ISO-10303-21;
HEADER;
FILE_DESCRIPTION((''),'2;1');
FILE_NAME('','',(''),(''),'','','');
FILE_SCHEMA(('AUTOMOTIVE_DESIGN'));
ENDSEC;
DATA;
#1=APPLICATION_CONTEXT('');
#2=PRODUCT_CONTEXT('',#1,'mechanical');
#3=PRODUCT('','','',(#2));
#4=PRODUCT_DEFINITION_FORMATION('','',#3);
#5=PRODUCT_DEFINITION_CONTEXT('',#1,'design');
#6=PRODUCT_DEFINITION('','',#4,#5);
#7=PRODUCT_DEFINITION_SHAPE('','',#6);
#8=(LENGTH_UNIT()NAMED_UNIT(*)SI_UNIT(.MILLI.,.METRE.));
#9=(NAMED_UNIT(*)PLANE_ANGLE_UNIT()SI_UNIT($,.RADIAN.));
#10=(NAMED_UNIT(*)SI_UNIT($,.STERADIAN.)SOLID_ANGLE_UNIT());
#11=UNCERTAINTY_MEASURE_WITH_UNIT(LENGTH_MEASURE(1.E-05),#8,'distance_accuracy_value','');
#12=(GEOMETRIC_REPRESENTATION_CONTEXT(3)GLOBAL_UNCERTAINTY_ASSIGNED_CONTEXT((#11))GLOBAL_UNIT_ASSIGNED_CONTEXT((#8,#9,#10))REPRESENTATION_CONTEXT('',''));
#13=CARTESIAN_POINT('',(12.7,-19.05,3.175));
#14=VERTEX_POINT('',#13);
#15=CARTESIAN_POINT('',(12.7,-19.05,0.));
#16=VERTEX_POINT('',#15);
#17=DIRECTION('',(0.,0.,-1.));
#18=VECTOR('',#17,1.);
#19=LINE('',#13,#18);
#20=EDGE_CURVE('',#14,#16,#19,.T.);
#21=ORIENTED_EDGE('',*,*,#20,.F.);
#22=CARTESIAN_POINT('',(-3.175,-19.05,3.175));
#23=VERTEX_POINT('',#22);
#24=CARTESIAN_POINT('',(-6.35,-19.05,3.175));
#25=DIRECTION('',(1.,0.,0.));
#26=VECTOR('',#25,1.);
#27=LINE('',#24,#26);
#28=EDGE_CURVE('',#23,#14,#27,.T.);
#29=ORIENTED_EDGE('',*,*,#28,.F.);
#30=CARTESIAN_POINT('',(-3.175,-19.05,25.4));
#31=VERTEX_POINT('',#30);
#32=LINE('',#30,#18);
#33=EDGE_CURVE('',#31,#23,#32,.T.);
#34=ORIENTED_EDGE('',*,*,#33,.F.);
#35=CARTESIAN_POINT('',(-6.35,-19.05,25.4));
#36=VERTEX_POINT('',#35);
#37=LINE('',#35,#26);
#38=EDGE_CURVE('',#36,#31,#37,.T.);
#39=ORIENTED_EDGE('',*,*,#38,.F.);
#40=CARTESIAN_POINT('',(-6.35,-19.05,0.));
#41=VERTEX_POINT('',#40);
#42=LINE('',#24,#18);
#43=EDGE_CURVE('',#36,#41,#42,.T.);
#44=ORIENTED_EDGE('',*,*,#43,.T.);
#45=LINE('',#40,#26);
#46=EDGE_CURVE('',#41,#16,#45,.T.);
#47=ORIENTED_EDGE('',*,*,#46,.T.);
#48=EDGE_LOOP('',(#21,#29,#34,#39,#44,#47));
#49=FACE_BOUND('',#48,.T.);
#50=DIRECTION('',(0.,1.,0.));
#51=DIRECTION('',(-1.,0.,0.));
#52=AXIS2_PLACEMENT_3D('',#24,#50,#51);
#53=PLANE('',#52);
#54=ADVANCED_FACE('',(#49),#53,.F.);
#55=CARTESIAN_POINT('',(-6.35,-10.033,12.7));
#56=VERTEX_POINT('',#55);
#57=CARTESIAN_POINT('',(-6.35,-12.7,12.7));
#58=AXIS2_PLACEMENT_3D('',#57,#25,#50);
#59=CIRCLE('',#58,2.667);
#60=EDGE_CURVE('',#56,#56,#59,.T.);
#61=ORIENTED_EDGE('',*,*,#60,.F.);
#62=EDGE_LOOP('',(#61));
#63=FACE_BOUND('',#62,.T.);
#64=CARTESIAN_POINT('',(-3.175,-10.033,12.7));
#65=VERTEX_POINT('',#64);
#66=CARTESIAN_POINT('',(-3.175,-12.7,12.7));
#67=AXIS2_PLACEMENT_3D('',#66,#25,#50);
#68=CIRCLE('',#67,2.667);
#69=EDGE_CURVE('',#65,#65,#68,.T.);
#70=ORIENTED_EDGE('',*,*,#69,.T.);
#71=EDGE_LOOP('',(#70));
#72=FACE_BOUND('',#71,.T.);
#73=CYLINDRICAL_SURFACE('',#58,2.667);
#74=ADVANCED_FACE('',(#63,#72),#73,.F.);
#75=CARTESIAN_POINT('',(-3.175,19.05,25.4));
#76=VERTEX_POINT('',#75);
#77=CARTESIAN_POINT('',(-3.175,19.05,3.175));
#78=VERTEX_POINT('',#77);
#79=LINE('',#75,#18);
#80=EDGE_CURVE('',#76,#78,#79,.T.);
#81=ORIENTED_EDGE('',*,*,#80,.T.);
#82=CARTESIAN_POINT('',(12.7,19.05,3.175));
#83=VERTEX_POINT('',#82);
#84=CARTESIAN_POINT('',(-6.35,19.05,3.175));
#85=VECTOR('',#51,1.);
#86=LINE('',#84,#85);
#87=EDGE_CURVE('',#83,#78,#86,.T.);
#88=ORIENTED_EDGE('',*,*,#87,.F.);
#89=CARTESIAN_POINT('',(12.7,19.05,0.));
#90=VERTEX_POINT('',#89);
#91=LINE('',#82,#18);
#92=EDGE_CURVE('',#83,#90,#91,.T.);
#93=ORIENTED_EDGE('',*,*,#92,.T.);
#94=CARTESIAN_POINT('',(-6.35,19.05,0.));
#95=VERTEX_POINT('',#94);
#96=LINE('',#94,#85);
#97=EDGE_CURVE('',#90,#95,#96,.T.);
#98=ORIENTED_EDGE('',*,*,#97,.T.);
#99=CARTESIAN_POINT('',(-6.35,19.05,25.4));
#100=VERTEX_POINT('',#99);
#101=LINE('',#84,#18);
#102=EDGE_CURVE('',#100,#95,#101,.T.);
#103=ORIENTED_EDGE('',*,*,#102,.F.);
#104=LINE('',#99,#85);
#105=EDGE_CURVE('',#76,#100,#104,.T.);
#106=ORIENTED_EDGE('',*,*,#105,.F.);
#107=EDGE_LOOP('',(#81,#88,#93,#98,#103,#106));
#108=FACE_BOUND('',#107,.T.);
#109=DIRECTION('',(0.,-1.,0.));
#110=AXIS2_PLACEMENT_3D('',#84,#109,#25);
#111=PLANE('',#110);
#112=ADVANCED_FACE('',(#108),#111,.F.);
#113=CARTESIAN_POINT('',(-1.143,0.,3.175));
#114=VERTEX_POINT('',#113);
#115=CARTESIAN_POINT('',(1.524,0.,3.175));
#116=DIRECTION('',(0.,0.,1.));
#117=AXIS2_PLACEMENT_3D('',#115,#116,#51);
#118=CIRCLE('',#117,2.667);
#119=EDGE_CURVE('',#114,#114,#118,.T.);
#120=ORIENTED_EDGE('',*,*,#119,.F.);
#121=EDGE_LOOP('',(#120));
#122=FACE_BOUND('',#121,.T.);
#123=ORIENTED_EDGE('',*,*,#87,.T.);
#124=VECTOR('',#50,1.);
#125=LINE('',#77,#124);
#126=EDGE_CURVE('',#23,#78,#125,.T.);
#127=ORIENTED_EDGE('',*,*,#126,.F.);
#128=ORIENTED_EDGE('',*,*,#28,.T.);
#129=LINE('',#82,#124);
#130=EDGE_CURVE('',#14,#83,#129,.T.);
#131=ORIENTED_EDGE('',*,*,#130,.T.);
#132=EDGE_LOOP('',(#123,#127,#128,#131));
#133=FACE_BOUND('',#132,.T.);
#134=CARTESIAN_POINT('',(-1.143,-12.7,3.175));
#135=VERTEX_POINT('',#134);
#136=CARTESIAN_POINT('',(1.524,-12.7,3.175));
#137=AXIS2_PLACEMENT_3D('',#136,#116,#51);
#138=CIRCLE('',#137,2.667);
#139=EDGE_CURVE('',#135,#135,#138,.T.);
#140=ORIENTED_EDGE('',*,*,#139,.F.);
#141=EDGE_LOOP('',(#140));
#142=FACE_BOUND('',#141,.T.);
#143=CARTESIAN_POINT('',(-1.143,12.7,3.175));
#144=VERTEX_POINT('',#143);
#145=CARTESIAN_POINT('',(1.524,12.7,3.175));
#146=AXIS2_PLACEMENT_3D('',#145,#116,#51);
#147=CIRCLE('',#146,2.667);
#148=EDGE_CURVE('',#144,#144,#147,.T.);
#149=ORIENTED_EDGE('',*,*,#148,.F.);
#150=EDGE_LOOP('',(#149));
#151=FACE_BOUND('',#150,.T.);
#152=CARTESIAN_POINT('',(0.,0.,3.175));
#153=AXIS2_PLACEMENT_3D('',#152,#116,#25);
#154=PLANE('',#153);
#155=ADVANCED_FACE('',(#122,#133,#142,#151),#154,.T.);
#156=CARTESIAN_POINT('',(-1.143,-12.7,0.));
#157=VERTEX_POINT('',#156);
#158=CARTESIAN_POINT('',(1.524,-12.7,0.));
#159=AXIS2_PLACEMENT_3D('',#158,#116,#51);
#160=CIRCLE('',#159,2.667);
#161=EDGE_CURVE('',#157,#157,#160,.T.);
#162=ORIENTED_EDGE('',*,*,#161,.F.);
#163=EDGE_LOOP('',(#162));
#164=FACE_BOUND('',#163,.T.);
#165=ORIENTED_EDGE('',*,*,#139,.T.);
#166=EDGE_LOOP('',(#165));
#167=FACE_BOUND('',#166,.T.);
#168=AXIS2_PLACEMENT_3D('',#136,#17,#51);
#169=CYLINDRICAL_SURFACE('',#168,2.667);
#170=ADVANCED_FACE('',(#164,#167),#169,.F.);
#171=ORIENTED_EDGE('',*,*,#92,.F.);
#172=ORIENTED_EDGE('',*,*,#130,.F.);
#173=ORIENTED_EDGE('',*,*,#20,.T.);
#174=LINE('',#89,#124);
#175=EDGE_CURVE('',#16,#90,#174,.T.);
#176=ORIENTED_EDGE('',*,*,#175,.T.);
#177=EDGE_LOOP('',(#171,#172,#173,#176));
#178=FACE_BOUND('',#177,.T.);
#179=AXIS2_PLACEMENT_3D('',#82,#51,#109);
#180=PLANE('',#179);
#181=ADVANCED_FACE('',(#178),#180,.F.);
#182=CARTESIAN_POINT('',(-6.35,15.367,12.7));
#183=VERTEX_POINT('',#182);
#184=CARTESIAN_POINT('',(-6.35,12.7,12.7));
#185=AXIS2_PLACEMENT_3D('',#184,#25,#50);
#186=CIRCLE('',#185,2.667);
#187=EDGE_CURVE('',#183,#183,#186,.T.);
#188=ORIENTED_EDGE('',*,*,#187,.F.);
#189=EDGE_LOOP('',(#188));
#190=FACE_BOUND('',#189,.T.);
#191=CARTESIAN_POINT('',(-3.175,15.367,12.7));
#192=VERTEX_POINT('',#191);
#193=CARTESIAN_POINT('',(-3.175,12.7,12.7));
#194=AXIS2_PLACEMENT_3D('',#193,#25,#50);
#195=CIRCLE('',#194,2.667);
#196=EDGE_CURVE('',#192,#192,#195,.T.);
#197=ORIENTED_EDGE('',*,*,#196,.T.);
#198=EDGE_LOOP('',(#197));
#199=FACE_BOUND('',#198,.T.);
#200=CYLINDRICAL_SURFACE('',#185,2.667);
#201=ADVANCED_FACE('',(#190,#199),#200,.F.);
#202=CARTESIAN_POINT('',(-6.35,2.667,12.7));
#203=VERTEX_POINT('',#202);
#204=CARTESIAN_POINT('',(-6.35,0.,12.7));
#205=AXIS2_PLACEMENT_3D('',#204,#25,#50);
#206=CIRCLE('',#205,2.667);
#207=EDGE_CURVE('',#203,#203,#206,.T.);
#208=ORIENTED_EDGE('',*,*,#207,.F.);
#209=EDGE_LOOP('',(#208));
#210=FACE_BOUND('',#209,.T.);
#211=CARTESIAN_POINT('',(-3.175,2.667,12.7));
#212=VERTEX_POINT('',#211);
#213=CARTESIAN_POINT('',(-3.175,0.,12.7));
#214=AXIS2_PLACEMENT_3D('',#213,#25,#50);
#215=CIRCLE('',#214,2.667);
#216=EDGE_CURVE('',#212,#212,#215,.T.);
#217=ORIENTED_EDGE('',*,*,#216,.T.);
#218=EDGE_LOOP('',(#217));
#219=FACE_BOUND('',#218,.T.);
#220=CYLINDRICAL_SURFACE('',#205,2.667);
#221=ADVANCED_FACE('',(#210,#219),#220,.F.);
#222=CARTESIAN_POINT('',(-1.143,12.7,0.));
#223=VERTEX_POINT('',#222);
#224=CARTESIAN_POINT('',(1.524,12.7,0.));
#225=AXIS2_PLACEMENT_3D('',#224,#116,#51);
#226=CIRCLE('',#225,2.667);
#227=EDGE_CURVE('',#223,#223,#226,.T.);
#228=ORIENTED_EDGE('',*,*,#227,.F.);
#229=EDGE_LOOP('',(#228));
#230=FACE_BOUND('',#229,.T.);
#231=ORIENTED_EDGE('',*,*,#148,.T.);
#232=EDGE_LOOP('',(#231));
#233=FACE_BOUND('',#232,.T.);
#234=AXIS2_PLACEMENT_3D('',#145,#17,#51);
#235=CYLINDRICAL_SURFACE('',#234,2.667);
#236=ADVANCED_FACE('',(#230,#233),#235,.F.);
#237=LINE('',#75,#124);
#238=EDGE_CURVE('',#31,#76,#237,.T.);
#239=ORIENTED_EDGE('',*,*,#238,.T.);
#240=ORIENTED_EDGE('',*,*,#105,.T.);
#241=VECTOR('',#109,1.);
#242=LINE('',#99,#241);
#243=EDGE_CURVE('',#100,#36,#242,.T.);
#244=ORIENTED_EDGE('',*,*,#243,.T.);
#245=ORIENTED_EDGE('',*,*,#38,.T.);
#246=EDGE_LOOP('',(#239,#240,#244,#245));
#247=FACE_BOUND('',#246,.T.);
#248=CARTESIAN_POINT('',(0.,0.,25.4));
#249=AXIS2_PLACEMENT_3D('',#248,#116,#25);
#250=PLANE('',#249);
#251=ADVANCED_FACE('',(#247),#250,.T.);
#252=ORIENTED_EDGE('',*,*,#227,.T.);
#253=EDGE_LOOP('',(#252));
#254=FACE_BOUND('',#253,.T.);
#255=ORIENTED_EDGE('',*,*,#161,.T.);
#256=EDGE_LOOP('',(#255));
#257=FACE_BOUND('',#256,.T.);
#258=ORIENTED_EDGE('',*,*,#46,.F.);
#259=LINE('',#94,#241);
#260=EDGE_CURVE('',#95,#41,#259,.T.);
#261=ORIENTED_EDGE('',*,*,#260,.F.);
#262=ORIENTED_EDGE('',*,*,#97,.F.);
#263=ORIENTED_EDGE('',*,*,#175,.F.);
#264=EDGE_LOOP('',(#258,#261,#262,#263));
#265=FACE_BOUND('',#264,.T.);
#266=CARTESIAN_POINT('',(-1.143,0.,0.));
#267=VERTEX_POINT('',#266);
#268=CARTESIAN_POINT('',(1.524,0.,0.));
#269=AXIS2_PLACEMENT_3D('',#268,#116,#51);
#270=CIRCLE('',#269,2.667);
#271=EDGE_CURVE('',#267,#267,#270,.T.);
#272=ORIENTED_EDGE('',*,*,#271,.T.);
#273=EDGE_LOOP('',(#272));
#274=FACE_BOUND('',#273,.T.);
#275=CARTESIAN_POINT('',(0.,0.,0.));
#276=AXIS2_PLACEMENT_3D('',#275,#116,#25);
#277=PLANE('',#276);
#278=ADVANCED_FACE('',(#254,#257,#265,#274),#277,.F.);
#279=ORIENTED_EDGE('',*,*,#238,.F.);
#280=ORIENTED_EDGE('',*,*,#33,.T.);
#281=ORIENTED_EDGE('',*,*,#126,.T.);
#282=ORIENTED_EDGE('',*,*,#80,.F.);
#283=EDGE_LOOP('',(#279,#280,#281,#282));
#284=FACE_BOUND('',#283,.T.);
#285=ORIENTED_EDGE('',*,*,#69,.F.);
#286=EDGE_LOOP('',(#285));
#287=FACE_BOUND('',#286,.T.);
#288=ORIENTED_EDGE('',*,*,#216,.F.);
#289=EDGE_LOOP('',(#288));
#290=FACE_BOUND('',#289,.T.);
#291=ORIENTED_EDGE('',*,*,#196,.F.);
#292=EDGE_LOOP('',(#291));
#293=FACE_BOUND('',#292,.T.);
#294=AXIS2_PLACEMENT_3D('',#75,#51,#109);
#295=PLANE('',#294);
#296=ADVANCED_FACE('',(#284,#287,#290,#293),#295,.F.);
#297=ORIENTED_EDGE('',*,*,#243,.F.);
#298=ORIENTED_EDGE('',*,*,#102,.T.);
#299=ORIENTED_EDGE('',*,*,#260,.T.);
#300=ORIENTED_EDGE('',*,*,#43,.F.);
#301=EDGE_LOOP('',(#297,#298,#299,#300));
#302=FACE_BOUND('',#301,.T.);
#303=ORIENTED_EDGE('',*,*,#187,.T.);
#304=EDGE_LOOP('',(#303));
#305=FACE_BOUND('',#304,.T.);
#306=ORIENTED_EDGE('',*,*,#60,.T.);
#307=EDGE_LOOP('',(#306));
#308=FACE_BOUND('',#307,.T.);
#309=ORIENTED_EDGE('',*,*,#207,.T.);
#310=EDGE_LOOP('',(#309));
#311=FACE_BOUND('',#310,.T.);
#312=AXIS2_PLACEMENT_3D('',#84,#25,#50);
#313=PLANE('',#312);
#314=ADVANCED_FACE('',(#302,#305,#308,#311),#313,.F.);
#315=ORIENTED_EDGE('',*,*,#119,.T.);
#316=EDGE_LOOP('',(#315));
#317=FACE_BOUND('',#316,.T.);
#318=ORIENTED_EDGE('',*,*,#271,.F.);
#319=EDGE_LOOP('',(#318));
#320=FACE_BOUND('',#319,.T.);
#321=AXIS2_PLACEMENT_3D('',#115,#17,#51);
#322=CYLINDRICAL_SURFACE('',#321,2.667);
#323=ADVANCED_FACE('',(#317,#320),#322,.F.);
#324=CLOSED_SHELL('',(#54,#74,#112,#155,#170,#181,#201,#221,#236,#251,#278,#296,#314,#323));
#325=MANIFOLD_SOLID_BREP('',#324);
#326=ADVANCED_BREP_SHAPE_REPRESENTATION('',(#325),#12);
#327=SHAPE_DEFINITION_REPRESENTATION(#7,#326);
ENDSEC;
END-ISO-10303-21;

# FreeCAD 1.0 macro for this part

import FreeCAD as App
import Part
import Sketcher

V = App.Vector
Q = App.Units.Quantity

doc = App.newDocument("Part")
body = doc.addObject("PartDesign::Body", "Body")

# Sketch on XY plane
sketch1 = doc.addObject("Sketcher::SketchObject", "Sketch")
body.addObject(sketch1)
sketch1.AttachmentSupport = (doc.XY_Plane, [""])
sketch1.MapMode = "FlatFace"
sketch1.addGeometry([
    Part.LineSegment(V(-6.35, 19.05, 0), V(-6.35, -19.05, 0)),  # 0
    Part.LineSegment(V(-6.35, -19.05, 0), V(12.7, -19.05, 0)),  # 1
    Part.LineSegment(V(12.7, -19.05, 0), V(12.7, 19.05, 0)),  # 2
    Part.LineSegment(V(12.7, 19.05, 0), V(-6.35, 19.05, 0)),  # 3
    Part.Circle(V(1.524, -12.7, 0), V(0, 0, 1), 2.667),  # 4
    Part.Circle(V(1.524, 0, 0), V(0, 0, 1), 2.667),  # 5
    Part.Circle(V(1.524, 12.7, 0), V(0, 0, 1), 2.667),  # 6
], False)
sketch1.addConstraint([
    Sketcher.Constraint("Coincident", 0, 2, 1, 1),
    Sketcher.Constraint("Coincident", 1, 2, 2, 1),
    Sketcher.Constraint("Coincident", 2, 2, 3, 1),
    Sketcher.Constraint("Coincident", 3, 2, 0, 1),
    Sketcher.Constraint("Vertical", 0),
    Sketcher.Constraint("Horizontal", 1),
    Sketcher.Constraint("Vertical", 2),
    Sketcher.Constraint("Horizontal", 3),
    Sketcher.Constraint("Equal", 4, 5),
    Sketcher.Constraint("Equal", 5, 6),
    Sketcher.Constraint("Symmetric", 4, 3, 6, 3, -1),
    Sketcher.Constraint("PointOnObject", 5, 3, -1),
    Sketcher.Constraint("Vertical", 4, 3, 5, 3),
    Sketcher.Constraint("Diameter", 4, Q("0.21 in")),
    Sketcher.Constraint("DistanceY", 0, 2, 0, 1, Q("1.5 in")),
    Sketcher.Constraint("DistanceY", 4, 3, 6, 3, Q("1 in")),
    Sketcher.Constraint("DistanceX", 1, 1, 1, 2, Q("0.75 in")),
    Sketcher.Constraint("DistanceX", -1, 1, 1, 2, Q("0.5 in")),
    Sketcher.Constraint("DistanceX", -1, 1, 4, 3, Q("0.06 in")),
    Sketcher.Constraint("DistanceY", 0, 2, -1, 1, Q("0.75 in")),
])
pad1 = doc.addObject("PartDesign::Pad", "Pad")
body.addObject(pad1)
pad1.Profile = sketch1
pad1.Length = Q("0.125 in")

# Sketch on XY plane
sketch2 = doc.addObject("Sketcher::SketchObject", "Sketch001")
body.addObject(sketch2)
sketch2.AttachmentSupport = (doc.XY_Plane, [""])
sketch2.MapMode = "FlatFace"
sketch2.AttachmentOffset = App.Placement(V(0, 0, 0.125 * 25.4), App.Rotation())
sketch2.addGeometry([
    Part.LineSegment(V(-6.35, 19.05, 0), V(-6.35, -19.05, 0)),
    Part.LineSegment(V(-6.35, -19.05, 0), V(-3.175, -19.05, 0)),
    Part.LineSegment(V(-3.175, -19.05, 0), V(-3.175, 19.05, 0)),
    Part.LineSegment(V(-3.175, 19.05, 0), V(-6.35, 19.05, 0)),
], False)
sketch2.addConstraint([
    Sketcher.Constraint("Coincident", 0, 2, 1, 1),
    Sketcher.Constraint("Coincident", 1, 2, 2, 1),
    Sketcher.Constraint("Coincident", 2, 2, 3, 1),
    Sketcher.Constraint("Coincident", 3, 2, 0, 1),
    Sketcher.Constraint("Vertical", 0),
    Sketcher.Constraint("Horizontal", 1),
    Sketcher.Constraint("Vertical", 2),
    Sketcher.Constraint("Horizontal", 3),
    Sketcher.Constraint("DistanceY", 0, 2, 0, 1, Q("1.5 in")),
    Sketcher.Constraint("DistanceX", 1, 1, 1, 2, Q("0.125 in")),
    Sketcher.Constraint("DistanceX", 0, 2, -1, 1, Q("0.25 in")),
    Sketcher.Constraint("DistanceY", 0, 2, -1, 1, Q("0.75 in")),
])
pad2 = doc.addObject("PartDesign::Pad", "Pad001")
body.addObject(pad2)
pad2.Profile = sketch2
pad2.Length = Q("0.875 in")

# Sketch on YZ plane
sketch3 = doc.addObject("Sketcher::SketchObject", "Sketch002")
body.addObject(sketch3)
sketch3.AttachmentSupport = (doc.YZ_Plane, [""])
sketch3.MapMode = "FlatFace"
sketch3.AttachmentOffset = App.Placement(V(0, 0, -0.125 * 25.4), App.Rotation())
sketch3.addGeometry([
    Part.Circle(V(0, 12.7, 0), V(0, 0, 1), 2.667),
    Part.Circle(V(12.7, 12.7, 0), V(0, 0, 1), 2.667),
    Part.Circle(V(-12.7, 12.7, 0), V(0, 0, 1), 2.667),
], False)
sketch3.addConstraint([
    Sketcher.Constraint("Equal", 0, 1),
    Sketcher.Constraint("Equal", 1, 2),
    Sketcher.Constraint("Symmetric", 1, 3, 2, 3, -2),
    Sketcher.Constraint("PointOnObject", 0, 3, -2),
    Sketcher.Constraint("Horizontal", 0, 3, 1, 3),
    Sketcher.Constraint("Diameter", 0, Q("0.21 in")),
    Sketcher.Constraint("DistanceX", 2, 3, 1, 3, Q("1 in")),
    Sketcher.Constraint("DistanceY", -1, 1, 0, 3, Q("0.5 in")),
])
pocket1 = doc.addObject("PartDesign::Pocket", "Pocket")
body.addObject(pocket1)
pocket1.Profile = sketch3
pocket1.Type = "ThroughAll"

doc.recompute()
